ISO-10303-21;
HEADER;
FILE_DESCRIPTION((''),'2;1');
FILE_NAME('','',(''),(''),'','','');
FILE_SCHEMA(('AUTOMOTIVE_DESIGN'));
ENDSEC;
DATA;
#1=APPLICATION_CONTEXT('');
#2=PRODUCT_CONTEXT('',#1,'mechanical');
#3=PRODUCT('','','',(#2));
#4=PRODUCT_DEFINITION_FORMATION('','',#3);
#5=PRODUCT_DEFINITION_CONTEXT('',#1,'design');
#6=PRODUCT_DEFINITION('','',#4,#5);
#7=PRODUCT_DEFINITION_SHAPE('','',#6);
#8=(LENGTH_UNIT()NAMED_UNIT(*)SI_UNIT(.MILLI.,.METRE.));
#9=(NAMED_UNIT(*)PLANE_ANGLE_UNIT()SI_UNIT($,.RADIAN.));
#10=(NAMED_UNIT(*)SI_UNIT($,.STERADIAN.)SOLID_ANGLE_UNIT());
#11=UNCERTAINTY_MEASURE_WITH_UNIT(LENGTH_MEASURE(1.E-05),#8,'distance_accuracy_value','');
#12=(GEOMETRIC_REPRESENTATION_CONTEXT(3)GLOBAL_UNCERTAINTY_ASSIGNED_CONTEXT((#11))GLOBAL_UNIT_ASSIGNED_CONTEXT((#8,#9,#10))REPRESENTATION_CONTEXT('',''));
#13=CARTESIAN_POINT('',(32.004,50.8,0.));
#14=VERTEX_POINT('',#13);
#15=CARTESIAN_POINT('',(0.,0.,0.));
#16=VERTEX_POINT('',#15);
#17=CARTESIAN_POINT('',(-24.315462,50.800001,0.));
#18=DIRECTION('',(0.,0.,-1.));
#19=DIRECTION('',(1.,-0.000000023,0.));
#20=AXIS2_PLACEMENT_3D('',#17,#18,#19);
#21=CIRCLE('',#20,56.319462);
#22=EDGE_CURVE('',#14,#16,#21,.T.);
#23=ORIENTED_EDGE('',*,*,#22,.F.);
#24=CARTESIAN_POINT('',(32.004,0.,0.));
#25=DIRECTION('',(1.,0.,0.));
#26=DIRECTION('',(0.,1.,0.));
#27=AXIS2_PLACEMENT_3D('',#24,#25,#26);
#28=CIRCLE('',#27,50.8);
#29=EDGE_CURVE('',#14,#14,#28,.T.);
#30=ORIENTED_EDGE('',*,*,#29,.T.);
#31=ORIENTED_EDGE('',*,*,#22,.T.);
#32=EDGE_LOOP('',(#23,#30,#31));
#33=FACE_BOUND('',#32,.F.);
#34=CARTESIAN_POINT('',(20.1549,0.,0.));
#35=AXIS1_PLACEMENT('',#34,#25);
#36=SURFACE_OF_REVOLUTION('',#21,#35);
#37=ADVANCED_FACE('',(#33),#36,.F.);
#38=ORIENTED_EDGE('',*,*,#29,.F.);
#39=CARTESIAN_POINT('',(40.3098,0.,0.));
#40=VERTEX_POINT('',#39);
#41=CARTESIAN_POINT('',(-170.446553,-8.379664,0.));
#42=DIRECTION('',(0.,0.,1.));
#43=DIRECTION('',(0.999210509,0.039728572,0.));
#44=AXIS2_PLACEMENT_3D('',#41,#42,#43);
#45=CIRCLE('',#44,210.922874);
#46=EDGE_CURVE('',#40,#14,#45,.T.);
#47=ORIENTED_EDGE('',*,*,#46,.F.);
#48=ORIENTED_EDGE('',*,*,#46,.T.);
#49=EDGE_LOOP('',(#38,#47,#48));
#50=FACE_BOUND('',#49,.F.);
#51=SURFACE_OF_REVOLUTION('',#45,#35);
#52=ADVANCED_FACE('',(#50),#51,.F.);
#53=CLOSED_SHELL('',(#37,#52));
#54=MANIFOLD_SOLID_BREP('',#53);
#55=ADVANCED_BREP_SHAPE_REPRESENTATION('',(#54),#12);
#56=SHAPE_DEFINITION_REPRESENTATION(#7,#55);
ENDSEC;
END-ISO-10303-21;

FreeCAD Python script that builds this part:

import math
import FreeCAD as App
import Part
import Sketcher
from FreeCAD import Vector
Q = App.Units.Quantity

doc = App.newDocument("Part")
body = doc.addObject("PartDesign::Body", "Body")

# Sketch on XY plane
sketch1 = body.newObject("Sketcher::SketchObject", "Sketch")
sketch1.AttachmentSupport = (doc.getObject("XY_Plane"), [""])
sketch1.MapMode = "FlatFace"
sketch1.addGeometry(Part.ArcOfCircle(Part.Circle(Vector(-170, -8, 0), Vector(0, 0, 1), 211), math.radians(2.28), math.radians(16.29)), False)
sketch1.addGeometry(Part.ArcOfCircle(Part.Circle(Vector(-24, 51, 0), Vector(0, 0, 1), 56), math.radians(-64), math.radians(0)), False)
sketch1.addGeometry(Part.LineSegment(Vector(0, 0, 0), Vector(40, 0, 0)), False)
sketch1.addConstraint(Sketcher.Constraint("Coincident", 0, 2, 1, 2))
sketch1.addConstraint(Sketcher.Constraint("Coincident", 1, 1, 2, 1))
sketch1.addConstraint(Sketcher.Constraint("Coincident", 2, 2, 0, 1))
sketch1.addConstraint(Sketcher.Constraint("Horizontal", 2))
sketch1.addConstraint(Sketcher.Constraint("Coincident", 1, 1, -1, 1))
sketch1.addConstraint(Sketcher.Constraint("Horizontal", 1, 3, 0, 2))
sketch1.addConstraint(Sketcher.Constraint("DistanceY", -1, 1, 1, 3, Q("2.0000001 in")))
sketch1.addConstraint(Sketcher.Constraint("DistanceX", 2, 1, 2, 2, Q("1.587 in")))
sketch1.addConstraint(Sketcher.Constraint("DistanceX", -1, 1, 0, 2, Q("1.26 in")))
sketch1.addConstraint(Sketcher.Constraint("Radius", 0, 210.922874))
revolution = body.newObject("PartDesign::Revolution", "Revolution")
revolution.Profile = sketch1
revolution.ReferenceAxis = (sketch1, ["H_Axis"])
revolution.Angle = 360

doc.recompute()
